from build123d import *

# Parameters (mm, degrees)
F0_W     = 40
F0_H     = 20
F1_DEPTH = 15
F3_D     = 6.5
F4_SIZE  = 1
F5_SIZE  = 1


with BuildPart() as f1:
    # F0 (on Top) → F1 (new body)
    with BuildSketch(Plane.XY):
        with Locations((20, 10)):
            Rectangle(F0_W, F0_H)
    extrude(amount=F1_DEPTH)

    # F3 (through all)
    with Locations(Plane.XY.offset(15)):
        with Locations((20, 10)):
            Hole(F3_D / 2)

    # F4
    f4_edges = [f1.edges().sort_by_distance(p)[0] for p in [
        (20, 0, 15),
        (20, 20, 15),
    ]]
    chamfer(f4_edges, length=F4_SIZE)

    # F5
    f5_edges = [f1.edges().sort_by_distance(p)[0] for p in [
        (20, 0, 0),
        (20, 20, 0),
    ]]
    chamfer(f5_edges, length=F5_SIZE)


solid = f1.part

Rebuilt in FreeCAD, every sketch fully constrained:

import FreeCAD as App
import Part
import Sketcher
Q = App.Units.Quantity


def edges_at(feature, points):
    """Names of the edges that pass closest to the given points."""
    edges = feature.Shape.Edges
    near = lambda p: min(range(len(edges)), key=lambda i: edges[i].distToShape(Part.Vertex(*p))[0])
    return sorted({f"Edge{near(p) + 1}" for p in points})

doc = App.newDocument("Part")
params = doc.addObject("Spreadsheet::Sheet", "Params")
for row, (alias, value) in enumerate([
    ("sketch1_width", "40 mm"),
    ("sketch1_height", "20 mm"),
    ("pad1_length", "15 mm"),
    ("sketch2_diameter", "6.5 mm"),
    ("hole_diameter", "6.5 mm"),
    ("chamfer_size", "1 mm"),
    ("chamfer2_size", "1 mm"),
], start=1):
    params.set(f"A{row}", alias)
    params.set(f"B{row}", "=" + value)
    params.setAlias(f"B{row}", alias)

body = doc.addObject("PartDesign::Body", "Body")

# Sketch on XY plane
sketch1 = body.newObject("Sketcher::SketchObject", "Sketch")
sketch1.AttachmentSupport = (doc.getObject("XY_Plane"), [""])
sketch1.MapMode = "FlatFace"
sketch1.addGeometry([
    Part.LineSegment(App.Vector(0, 20, 0), App.Vector(0, 0, 0)),
    Part.LineSegment(App.Vector(0, 0, 0), App.Vector(40, 0, 0)),
    Part.LineSegment(App.Vector(40, 0, 0), App.Vector(40, 20, 0)),
    Part.LineSegment(App.Vector(40, 20, 0), App.Vector(0, 20, 0)),
], False)
sketch1.addConstraint([
    Sketcher.Constraint("Coincident", 0, 2, 1, 1),
    Sketcher.Constraint("Coincident", 1, 2, 2, 1),
    Sketcher.Constraint("Coincident", 2, 2, 3, 1),
    Sketcher.Constraint("Coincident", 3, 2, 0, 1),
    Sketcher.Constraint("Vertical", 0),
    Sketcher.Constraint("Horizontal", 1),
    Sketcher.Constraint("Vertical", 2),
    Sketcher.Constraint("Horizontal", 3),
    Sketcher.Constraint("Coincident", 0, 2, -1, 1),
    Sketcher.Constraint("DistanceX", 1, 1, 1, 2, Q("40 mm")),
    Sketcher.Constraint("DistanceY", 0, 2, 0, 1, Q("20 mm")),
])
sketch1.setExpression("Constraints[9]", "Params.sketch1_width")
sketch1.setExpression("Constraints[10]", "Params.sketch1_height")
pad1 = body.newObject("PartDesign::Pad", "Pad")
pad1.Profile = sketch1
pad1.setExpression("Length", "Params.pad1_length")

# Sketch on XY plane
sketch2 = body.newObject("Sketcher::SketchObject", "Sketch001")
sketch2.AttachmentSupport = (doc.getObject("XY_Plane"), [""])
sketch2.MapMode = "FlatFace"
sketch2.AttachmentOffset = App.Placement(App.Vector(0, 0, 15), App.Rotation())
sketch2.addGeometry(Part.Circle(App.Vector(20, 10, 0), App.Vector(0, 0, 1), 3.2), False)
sketch2.addConstraint([
    Sketcher.Constraint("Diameter", 0, Q("6.5 mm")),
    Sketcher.Constraint("DistanceX", -1, 1, 0, 3, Q("20 mm")),
    Sketcher.Constraint("DistanceY", -1, 1, 0, 3, Q("10 mm")),
])
sketch2.setExpression("Constraints[0]", "Params.sketch2_diameter")
doc.recompute()
hole = body.newObject("PartDesign::Hole", "Hole")
hole.Profile = sketch2
hole.ThreadType = "None"
hole.setExpression("Diameter", "Params.hole_diameter")
hole.DepthType = "ThroughAll"
doc.recompute()

chamfer = body.newObject("PartDesign::Chamfer", "Chamfer")
chamfer.Base = (hole, edges_at(hole, [(20, 0, 15), (20, 20, 15)]))
chamfer.setExpression("Size", "Params.chamfer_size")
doc.recompute()

chamfer2 = body.newObject("PartDesign::Chamfer", "Chamfer001")
chamfer2.Base = (chamfer, edges_at(chamfer, [(20, 0, 0), (20, 20, 0)]))
chamfer2.setExpression("Size", "Params.chamfer2_size")

doc.recompute()
